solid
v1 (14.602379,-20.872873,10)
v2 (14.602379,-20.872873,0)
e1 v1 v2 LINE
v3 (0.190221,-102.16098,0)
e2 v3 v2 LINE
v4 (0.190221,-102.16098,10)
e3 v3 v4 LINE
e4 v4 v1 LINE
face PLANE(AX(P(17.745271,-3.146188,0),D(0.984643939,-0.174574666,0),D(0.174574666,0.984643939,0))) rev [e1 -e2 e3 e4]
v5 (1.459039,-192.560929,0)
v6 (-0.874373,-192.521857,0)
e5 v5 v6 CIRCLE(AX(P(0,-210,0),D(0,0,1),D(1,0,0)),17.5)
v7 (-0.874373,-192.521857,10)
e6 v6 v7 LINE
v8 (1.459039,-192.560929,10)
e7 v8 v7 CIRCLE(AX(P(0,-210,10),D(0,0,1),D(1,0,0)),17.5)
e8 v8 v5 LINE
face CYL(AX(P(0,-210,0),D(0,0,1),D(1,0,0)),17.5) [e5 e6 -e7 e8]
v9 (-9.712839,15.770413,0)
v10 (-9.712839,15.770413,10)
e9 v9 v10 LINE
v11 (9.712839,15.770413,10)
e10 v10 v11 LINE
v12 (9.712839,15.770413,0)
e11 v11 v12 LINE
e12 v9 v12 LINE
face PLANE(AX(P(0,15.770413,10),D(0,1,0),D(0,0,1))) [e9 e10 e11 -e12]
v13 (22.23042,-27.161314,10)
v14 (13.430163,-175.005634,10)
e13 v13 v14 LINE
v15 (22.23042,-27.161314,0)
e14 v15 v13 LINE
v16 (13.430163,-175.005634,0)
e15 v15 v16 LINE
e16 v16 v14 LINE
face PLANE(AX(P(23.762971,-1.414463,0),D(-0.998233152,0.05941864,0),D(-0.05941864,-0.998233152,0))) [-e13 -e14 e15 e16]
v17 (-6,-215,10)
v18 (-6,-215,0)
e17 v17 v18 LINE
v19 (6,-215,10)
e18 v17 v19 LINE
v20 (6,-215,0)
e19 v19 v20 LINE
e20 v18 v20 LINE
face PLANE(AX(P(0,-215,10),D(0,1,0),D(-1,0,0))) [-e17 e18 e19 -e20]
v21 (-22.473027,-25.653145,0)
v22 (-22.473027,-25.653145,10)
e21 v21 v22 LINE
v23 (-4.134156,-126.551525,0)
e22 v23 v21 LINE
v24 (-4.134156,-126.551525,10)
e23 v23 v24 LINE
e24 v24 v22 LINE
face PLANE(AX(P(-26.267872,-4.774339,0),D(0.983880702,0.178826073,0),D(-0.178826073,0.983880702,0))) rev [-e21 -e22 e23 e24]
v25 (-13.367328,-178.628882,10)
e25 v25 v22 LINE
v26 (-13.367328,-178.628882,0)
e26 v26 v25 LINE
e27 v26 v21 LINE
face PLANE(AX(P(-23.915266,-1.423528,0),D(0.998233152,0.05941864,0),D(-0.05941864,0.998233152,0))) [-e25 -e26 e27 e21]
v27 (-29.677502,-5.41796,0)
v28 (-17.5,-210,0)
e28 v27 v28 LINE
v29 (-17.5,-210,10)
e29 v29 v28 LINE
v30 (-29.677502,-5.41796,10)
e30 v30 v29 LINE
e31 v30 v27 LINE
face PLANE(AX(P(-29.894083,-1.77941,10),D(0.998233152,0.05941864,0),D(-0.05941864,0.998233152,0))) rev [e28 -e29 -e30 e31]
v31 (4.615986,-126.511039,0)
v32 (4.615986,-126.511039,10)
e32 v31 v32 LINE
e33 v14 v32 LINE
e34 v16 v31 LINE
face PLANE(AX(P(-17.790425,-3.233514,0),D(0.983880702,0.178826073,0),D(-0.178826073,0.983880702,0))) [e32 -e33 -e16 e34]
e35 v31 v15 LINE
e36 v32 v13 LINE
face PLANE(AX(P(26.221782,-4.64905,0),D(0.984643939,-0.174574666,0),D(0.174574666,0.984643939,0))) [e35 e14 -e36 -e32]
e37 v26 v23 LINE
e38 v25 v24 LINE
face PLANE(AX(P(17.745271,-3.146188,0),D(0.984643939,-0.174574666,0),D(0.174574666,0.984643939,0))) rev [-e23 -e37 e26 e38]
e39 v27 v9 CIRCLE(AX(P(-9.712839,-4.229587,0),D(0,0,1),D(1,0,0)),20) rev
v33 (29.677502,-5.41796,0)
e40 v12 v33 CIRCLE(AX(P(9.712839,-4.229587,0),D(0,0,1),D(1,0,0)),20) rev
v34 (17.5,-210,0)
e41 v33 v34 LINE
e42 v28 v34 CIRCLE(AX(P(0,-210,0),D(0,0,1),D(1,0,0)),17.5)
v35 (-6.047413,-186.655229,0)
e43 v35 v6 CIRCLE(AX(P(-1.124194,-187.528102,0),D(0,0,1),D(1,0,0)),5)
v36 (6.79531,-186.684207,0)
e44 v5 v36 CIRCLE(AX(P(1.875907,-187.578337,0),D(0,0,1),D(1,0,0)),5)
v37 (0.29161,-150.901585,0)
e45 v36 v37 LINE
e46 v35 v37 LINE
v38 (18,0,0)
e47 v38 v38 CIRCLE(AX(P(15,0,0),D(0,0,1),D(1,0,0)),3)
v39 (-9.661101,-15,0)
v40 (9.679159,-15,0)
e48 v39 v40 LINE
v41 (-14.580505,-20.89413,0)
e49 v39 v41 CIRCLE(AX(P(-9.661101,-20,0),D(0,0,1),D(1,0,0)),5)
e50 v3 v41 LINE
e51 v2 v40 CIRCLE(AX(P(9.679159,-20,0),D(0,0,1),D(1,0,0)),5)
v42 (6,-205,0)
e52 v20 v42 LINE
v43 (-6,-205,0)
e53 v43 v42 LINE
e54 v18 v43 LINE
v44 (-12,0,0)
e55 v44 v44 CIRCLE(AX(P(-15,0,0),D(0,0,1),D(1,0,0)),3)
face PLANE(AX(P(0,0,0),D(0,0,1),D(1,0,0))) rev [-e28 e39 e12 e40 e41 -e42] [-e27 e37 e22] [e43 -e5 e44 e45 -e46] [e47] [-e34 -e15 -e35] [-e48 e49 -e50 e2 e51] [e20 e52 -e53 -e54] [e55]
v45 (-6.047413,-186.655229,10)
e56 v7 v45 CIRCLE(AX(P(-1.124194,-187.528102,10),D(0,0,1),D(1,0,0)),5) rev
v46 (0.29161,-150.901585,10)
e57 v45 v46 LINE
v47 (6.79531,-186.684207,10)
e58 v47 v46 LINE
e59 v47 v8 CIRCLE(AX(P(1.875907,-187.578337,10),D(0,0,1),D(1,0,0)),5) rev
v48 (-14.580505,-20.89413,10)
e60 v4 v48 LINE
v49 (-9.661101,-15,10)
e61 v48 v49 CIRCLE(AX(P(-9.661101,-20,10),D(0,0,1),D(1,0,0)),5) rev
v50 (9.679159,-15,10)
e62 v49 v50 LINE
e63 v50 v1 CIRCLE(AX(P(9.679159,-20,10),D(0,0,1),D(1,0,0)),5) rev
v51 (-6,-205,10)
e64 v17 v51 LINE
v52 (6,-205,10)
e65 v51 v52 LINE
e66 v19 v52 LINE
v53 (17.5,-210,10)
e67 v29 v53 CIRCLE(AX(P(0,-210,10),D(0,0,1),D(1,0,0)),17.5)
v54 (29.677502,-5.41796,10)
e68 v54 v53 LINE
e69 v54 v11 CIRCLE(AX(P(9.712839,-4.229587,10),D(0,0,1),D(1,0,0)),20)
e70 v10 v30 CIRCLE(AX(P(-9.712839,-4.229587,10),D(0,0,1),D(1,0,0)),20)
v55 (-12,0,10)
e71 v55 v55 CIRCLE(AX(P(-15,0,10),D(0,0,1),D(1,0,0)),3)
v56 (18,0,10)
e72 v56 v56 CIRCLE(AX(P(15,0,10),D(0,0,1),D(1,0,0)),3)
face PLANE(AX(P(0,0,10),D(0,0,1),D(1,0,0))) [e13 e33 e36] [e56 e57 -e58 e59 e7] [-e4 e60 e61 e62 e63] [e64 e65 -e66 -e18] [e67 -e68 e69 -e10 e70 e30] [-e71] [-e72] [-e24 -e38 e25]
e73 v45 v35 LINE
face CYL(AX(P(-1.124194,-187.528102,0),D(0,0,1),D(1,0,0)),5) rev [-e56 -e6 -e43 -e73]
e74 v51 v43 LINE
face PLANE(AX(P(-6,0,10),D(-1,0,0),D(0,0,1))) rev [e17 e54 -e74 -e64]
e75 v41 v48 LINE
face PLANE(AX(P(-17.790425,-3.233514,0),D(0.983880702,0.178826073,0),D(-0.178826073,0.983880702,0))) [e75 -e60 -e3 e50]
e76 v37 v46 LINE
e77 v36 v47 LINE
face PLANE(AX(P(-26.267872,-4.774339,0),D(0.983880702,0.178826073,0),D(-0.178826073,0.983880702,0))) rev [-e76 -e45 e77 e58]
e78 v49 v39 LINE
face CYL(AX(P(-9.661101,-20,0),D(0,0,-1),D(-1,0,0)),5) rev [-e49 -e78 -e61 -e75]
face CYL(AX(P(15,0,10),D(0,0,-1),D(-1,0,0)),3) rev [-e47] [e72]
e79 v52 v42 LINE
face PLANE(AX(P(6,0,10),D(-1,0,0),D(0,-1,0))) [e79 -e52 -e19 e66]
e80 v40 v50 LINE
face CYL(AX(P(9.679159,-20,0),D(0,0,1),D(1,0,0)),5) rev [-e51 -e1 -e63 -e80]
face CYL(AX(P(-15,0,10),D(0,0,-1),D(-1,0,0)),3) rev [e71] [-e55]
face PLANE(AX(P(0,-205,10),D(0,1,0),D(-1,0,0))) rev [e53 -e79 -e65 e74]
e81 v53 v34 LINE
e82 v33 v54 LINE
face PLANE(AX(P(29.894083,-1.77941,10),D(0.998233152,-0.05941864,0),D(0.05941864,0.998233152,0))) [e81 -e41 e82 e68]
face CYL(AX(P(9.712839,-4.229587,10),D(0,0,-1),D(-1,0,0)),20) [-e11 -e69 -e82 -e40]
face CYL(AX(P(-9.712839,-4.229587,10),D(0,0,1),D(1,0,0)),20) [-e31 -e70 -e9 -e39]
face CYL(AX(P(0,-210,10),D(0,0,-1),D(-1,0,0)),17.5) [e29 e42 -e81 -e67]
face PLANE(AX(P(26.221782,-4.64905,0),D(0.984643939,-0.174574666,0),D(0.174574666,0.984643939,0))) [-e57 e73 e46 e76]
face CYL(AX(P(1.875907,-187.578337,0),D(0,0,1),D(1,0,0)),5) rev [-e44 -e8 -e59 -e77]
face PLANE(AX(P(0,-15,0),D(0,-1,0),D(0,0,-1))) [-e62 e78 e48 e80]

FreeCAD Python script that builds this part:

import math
import FreeCAD as App
import Part
import Sketcher
from FreeCAD import Vector


def edges_at(feature, points):
    """Names of the edges that pass closest to the given points."""
    edges = feature.Shape.Edges
    near = lambda p: min(range(len(edges)), key=lambda i: edges[i].distToShape(Part.Vertex(*p))[0])
    return sorted({f"Edge{near(p) + 1}" for p in points})


def add_polygon(sketch, points):
    """Adds a closed chain of lines whose ends are joined by coincident constraints."""
    first, n = sketch.GeometryCount, len(points)
    for a, b in zip(points, points[1:] + points[:1]):
        sketch.addGeometry(Part.LineSegment(App.Vector(*a, 0), App.Vector(*b, 0)), False)
    for i in range(n):
        sketch.addConstraint(Sketcher.Constraint("Coincident", first + i, 2, first + (i + 1) % n, 1))

doc = App.newDocument("Part")
body = doc.addObject("PartDesign::Body", "Body")

# Sketch on XY plane
sketch1 = doc.addObject("Sketcher::SketchObject", "Sketch")
body.addObject(sketch1)
sketch1.AttachmentSupport = (doc.XY_Plane, [""])
sketch1.MapMode = "FlatFace"
sketch1.addGeometry(Part.LineSegment(Vector(-30, 15.8, 0), Vector(-30, 0, 0)), False)  # 0
sketch1.addGeometry(Part.LineSegment(Vector(-30, 0, 0), Vector(-17.5, -210, 0)), False)  # 1
sketch1.addGeometry(Part.ArcOfCircle(Part.Circle(Vector(0, -210, 0), Vector(0, 0, 1), 17.5), math.radians(180), math.radians(360)), False)  # 2
sketch1.addGeometry(Part.LineSegment(Vector(17.5, -210, 0), Vector(30, 0, 0)), False)  # 3
sketch1.addGeometry(Part.LineSegment(Vector(30, 0, 0), Vector(30, 15.8, 0)), False)  # 4
sketch1.addGeometry(Part.LineSegment(Vector(30, 15.8, 0), Vector(-30, 15.8, 0)), False)  # 5
add_polygon(sketch1, [(-6, -205), (6, -205), (6, -215), (-6, -215)])  # lines 6-9
sketch1.addGeometry(Part.Circle(Vector(-15, 0, 0), Vector(0, 0, 1), 3), False)  # 10
sketch1.addGeometry(Part.Circle(Vector(15, 0, 0), Vector(0, 0, 1), 3), False)  # 11
sketch1.addConstraint([
    Sketcher.Constraint("Coincident", 0, 2, 1, 1),
    Sketcher.Constraint("Coincident", 1, 2, 2, 1),
    Sketcher.Constraint("Coincident", 2, 2, 3, 1),
    Sketcher.Constraint("Coincident", 3, 2, 4, 1),
    Sketcher.Constraint("Coincident", 4, 2, 5, 1),
    Sketcher.Constraint("Coincident", 5, 2, 0, 1),
    Sketcher.Constraint("Vertical", 0),
    Sketcher.Constraint("Vertical", 4),
    Sketcher.Constraint("Horizontal", 5),
    Sketcher.Constraint("Horizontal", 6),
    Sketcher.Constraint("Vertical", 7),
    Sketcher.Constraint("Horizontal", 8),
    Sketcher.Constraint("Vertical", 9),
    Sketcher.Constraint("Equal", 10, 11),
    Sketcher.Constraint("Symmetric", 10, 3, 11, 3, -1, 1),
    Sketcher.Constraint("Symmetric", 0, 2, 3, 2, -1, 1),
    Sketcher.Constraint("Symmetric", 1, 2, 2, 2, -2),
    Sketcher.Constraint("PointOnObject", 10, 3, -1),
    Sketcher.Constraint("PointOnObject", 0, 2, -1),
    Sketcher.Constraint("Horizontal", 2, 3, 1, 2),
    Sketcher.Constraint("Diameter", 10, 6.0),
    Sketcher.Constraint("Radius", 2, 17.5),
    Sketcher.Constraint("DistanceX", 5, 2, 5, 1, 60.0),
    Sketcher.Constraint("DistanceX", 6, 1, 6, 2, 12.0),
    Sketcher.Constraint("DistanceY", 7, 2, 7, 1, 10.0),
    Sketcher.Constraint("DistanceY", 2, 3, -1, 1, 210.0),
    Sketcher.Constraint("DistanceX", 10, 3, -1, 1, 15.0),
    Sketcher.Constraint("DistanceX", -1, 1, 6, 2, 6.0),
    Sketcher.Constraint("DistanceY", 6, 2, -1, 1, 205.0),
    Sketcher.Constraint("DistanceY", 0, 2, 0, 1, 15.770413),
])
pad1 = doc.addObject("PartDesign::Pad", "Pad")
body.addObject(pad1)
pad1.Profile = sketch1
pad1.Length = 10
doc.recompute()

fillet = doc.addObject("PartDesign::Fillet", "Fillet")
body.addObject(fillet)
fillet.Base = (pad1, edges_at(pad1, [(-30, 15.77, 5)]))
fillet.Radius = 20
doc.recompute()

fillet2 = doc.addObject("PartDesign::Fillet", "Fillet001")
body.addObject(fillet2)
fillet2.Base = (fillet, edges_at(fillet, [(30, 15.77, 5)]))
fillet2.Radius = 20

# Sketch on XY plane
sketch2 = doc.addObject("Sketcher::SketchObject", "Sketch001")
body.addObject(sketch2)
sketch2.AttachmentSupport = (doc.XY_Plane, [""])
sketch2.MapMode = "FlatFace"
add_polygon(sketch2, [(-16, -15), (0, -102), (16, -15)])  # lines 0-2
add_polygon(sketch2, [(-22, -26), (-13, -179), (-4, -127)])  # lines 3-5
add_polygon(sketch2, [(22, -27), (5, -127), (13, -175)])  # lines 6-8
sketch2.addGeometry(Part.LineSegment(Vector(0, -151, 0), Vector(-7, -194, 0)), False)  # 9
sketch2.addGeometry(Part.ArcOfCircle(Part.Circle(Vector(0, -210, 0), Vector(0, 0, 1), 17), math.radians(62), math.radians(115)), False)  # 10
sketch2.addGeometry(Part.LineSegment(Vector(8, -195, 0), Vector(0, -151, 0)), False)  # 11
sketch2.addConstraint([
    Sketcher.Constraint("Coincident", 9, 2, 10, 2),
    Sketcher.Constraint("Coincident", 10, 1, 11, 1),
    Sketcher.Constraint("Coincident", 11, 2, 9, 1),
    Sketcher.Constraint("Horizontal", 2),
    Sketcher.Constraint("PointOnObject", 10, 3, -2),
    Sketcher.Constraint("Parallel", 1, 4),
    Sketcher.Constraint("Parallel", 0, 5),
    Sketcher.Constraint("Parallel", 4, 6),
    Sketcher.Constraint("Parallel", 5, 7),
    Sketcher.Constraint("Parallel", 6, 9),
    Sketcher.Constraint("Parallel", 7, 11),
    Sketcher.Constraint("Radius", 10, 17.5),
    Sketcher.Constraint("DistanceY", 10, 3, -1, 1, 210.0),
    Sketcher.Constraint("DistanceY", 1, 2, -1, 1, 15.0),
    Sketcher.Constraint("Distance", 8, 148.106001),
    Sketcher.Constraint("Distance", 3, 153.2465),
    Sketcher.Constraint("Distance", 7, 49.289101),
    Sketcher.Constraint("Distance", 9, 43.901301),
    Sketcher.Constraint("DistanceX", 2, 2, 2, 1, 31.29542),
    Sketcher.Constraint("DistanceX", 5, 2, 3, 2, 9.105699),
    Sketcher.Constraint("DistanceX", 0, 2, 8, 2, 22.040199),
    Sketcher.Constraint("DistanceY", 9, 2, 7, 2, 19.123101),
    Sketcher.Constraint("Distance", 0, 88.588972),
    Sketcher.Constraint("Distance", 4, 52.889531),
    Sketcher.Constraint("Distance", 11, 44.367258),
    Sketcher.Constraint("DistanceX", -1, 1, 0, 2, 0.190221),
    Sketcher.Constraint("DistanceX", 3, 2, -1, 1, 13.367328),
    Sketcher.Constraint("DistanceY", 3, 2, -1, 1, 178.628882),
])
pocket1 = doc.addObject("PartDesign::Pocket", "Pocket")
body.addObject(pocket1)
pocket1.Profile = sketch2
pocket1.Length = 10
pocket1.Reversed = True
doc.recompute()

fillet3 = doc.addObject("PartDesign::Fillet", "Fillet002")
body.addObject(fillet3)
fillet3.Base = (pocket1, edges_at(pocket1, [
    (8.226, -194.554, 5),
    (-7.372, -194.129, 5),
    (-15.652, -15, 5),
    (15.644, -15, 5),
]))
fillet3.Radius = 5

doc.recompute()
